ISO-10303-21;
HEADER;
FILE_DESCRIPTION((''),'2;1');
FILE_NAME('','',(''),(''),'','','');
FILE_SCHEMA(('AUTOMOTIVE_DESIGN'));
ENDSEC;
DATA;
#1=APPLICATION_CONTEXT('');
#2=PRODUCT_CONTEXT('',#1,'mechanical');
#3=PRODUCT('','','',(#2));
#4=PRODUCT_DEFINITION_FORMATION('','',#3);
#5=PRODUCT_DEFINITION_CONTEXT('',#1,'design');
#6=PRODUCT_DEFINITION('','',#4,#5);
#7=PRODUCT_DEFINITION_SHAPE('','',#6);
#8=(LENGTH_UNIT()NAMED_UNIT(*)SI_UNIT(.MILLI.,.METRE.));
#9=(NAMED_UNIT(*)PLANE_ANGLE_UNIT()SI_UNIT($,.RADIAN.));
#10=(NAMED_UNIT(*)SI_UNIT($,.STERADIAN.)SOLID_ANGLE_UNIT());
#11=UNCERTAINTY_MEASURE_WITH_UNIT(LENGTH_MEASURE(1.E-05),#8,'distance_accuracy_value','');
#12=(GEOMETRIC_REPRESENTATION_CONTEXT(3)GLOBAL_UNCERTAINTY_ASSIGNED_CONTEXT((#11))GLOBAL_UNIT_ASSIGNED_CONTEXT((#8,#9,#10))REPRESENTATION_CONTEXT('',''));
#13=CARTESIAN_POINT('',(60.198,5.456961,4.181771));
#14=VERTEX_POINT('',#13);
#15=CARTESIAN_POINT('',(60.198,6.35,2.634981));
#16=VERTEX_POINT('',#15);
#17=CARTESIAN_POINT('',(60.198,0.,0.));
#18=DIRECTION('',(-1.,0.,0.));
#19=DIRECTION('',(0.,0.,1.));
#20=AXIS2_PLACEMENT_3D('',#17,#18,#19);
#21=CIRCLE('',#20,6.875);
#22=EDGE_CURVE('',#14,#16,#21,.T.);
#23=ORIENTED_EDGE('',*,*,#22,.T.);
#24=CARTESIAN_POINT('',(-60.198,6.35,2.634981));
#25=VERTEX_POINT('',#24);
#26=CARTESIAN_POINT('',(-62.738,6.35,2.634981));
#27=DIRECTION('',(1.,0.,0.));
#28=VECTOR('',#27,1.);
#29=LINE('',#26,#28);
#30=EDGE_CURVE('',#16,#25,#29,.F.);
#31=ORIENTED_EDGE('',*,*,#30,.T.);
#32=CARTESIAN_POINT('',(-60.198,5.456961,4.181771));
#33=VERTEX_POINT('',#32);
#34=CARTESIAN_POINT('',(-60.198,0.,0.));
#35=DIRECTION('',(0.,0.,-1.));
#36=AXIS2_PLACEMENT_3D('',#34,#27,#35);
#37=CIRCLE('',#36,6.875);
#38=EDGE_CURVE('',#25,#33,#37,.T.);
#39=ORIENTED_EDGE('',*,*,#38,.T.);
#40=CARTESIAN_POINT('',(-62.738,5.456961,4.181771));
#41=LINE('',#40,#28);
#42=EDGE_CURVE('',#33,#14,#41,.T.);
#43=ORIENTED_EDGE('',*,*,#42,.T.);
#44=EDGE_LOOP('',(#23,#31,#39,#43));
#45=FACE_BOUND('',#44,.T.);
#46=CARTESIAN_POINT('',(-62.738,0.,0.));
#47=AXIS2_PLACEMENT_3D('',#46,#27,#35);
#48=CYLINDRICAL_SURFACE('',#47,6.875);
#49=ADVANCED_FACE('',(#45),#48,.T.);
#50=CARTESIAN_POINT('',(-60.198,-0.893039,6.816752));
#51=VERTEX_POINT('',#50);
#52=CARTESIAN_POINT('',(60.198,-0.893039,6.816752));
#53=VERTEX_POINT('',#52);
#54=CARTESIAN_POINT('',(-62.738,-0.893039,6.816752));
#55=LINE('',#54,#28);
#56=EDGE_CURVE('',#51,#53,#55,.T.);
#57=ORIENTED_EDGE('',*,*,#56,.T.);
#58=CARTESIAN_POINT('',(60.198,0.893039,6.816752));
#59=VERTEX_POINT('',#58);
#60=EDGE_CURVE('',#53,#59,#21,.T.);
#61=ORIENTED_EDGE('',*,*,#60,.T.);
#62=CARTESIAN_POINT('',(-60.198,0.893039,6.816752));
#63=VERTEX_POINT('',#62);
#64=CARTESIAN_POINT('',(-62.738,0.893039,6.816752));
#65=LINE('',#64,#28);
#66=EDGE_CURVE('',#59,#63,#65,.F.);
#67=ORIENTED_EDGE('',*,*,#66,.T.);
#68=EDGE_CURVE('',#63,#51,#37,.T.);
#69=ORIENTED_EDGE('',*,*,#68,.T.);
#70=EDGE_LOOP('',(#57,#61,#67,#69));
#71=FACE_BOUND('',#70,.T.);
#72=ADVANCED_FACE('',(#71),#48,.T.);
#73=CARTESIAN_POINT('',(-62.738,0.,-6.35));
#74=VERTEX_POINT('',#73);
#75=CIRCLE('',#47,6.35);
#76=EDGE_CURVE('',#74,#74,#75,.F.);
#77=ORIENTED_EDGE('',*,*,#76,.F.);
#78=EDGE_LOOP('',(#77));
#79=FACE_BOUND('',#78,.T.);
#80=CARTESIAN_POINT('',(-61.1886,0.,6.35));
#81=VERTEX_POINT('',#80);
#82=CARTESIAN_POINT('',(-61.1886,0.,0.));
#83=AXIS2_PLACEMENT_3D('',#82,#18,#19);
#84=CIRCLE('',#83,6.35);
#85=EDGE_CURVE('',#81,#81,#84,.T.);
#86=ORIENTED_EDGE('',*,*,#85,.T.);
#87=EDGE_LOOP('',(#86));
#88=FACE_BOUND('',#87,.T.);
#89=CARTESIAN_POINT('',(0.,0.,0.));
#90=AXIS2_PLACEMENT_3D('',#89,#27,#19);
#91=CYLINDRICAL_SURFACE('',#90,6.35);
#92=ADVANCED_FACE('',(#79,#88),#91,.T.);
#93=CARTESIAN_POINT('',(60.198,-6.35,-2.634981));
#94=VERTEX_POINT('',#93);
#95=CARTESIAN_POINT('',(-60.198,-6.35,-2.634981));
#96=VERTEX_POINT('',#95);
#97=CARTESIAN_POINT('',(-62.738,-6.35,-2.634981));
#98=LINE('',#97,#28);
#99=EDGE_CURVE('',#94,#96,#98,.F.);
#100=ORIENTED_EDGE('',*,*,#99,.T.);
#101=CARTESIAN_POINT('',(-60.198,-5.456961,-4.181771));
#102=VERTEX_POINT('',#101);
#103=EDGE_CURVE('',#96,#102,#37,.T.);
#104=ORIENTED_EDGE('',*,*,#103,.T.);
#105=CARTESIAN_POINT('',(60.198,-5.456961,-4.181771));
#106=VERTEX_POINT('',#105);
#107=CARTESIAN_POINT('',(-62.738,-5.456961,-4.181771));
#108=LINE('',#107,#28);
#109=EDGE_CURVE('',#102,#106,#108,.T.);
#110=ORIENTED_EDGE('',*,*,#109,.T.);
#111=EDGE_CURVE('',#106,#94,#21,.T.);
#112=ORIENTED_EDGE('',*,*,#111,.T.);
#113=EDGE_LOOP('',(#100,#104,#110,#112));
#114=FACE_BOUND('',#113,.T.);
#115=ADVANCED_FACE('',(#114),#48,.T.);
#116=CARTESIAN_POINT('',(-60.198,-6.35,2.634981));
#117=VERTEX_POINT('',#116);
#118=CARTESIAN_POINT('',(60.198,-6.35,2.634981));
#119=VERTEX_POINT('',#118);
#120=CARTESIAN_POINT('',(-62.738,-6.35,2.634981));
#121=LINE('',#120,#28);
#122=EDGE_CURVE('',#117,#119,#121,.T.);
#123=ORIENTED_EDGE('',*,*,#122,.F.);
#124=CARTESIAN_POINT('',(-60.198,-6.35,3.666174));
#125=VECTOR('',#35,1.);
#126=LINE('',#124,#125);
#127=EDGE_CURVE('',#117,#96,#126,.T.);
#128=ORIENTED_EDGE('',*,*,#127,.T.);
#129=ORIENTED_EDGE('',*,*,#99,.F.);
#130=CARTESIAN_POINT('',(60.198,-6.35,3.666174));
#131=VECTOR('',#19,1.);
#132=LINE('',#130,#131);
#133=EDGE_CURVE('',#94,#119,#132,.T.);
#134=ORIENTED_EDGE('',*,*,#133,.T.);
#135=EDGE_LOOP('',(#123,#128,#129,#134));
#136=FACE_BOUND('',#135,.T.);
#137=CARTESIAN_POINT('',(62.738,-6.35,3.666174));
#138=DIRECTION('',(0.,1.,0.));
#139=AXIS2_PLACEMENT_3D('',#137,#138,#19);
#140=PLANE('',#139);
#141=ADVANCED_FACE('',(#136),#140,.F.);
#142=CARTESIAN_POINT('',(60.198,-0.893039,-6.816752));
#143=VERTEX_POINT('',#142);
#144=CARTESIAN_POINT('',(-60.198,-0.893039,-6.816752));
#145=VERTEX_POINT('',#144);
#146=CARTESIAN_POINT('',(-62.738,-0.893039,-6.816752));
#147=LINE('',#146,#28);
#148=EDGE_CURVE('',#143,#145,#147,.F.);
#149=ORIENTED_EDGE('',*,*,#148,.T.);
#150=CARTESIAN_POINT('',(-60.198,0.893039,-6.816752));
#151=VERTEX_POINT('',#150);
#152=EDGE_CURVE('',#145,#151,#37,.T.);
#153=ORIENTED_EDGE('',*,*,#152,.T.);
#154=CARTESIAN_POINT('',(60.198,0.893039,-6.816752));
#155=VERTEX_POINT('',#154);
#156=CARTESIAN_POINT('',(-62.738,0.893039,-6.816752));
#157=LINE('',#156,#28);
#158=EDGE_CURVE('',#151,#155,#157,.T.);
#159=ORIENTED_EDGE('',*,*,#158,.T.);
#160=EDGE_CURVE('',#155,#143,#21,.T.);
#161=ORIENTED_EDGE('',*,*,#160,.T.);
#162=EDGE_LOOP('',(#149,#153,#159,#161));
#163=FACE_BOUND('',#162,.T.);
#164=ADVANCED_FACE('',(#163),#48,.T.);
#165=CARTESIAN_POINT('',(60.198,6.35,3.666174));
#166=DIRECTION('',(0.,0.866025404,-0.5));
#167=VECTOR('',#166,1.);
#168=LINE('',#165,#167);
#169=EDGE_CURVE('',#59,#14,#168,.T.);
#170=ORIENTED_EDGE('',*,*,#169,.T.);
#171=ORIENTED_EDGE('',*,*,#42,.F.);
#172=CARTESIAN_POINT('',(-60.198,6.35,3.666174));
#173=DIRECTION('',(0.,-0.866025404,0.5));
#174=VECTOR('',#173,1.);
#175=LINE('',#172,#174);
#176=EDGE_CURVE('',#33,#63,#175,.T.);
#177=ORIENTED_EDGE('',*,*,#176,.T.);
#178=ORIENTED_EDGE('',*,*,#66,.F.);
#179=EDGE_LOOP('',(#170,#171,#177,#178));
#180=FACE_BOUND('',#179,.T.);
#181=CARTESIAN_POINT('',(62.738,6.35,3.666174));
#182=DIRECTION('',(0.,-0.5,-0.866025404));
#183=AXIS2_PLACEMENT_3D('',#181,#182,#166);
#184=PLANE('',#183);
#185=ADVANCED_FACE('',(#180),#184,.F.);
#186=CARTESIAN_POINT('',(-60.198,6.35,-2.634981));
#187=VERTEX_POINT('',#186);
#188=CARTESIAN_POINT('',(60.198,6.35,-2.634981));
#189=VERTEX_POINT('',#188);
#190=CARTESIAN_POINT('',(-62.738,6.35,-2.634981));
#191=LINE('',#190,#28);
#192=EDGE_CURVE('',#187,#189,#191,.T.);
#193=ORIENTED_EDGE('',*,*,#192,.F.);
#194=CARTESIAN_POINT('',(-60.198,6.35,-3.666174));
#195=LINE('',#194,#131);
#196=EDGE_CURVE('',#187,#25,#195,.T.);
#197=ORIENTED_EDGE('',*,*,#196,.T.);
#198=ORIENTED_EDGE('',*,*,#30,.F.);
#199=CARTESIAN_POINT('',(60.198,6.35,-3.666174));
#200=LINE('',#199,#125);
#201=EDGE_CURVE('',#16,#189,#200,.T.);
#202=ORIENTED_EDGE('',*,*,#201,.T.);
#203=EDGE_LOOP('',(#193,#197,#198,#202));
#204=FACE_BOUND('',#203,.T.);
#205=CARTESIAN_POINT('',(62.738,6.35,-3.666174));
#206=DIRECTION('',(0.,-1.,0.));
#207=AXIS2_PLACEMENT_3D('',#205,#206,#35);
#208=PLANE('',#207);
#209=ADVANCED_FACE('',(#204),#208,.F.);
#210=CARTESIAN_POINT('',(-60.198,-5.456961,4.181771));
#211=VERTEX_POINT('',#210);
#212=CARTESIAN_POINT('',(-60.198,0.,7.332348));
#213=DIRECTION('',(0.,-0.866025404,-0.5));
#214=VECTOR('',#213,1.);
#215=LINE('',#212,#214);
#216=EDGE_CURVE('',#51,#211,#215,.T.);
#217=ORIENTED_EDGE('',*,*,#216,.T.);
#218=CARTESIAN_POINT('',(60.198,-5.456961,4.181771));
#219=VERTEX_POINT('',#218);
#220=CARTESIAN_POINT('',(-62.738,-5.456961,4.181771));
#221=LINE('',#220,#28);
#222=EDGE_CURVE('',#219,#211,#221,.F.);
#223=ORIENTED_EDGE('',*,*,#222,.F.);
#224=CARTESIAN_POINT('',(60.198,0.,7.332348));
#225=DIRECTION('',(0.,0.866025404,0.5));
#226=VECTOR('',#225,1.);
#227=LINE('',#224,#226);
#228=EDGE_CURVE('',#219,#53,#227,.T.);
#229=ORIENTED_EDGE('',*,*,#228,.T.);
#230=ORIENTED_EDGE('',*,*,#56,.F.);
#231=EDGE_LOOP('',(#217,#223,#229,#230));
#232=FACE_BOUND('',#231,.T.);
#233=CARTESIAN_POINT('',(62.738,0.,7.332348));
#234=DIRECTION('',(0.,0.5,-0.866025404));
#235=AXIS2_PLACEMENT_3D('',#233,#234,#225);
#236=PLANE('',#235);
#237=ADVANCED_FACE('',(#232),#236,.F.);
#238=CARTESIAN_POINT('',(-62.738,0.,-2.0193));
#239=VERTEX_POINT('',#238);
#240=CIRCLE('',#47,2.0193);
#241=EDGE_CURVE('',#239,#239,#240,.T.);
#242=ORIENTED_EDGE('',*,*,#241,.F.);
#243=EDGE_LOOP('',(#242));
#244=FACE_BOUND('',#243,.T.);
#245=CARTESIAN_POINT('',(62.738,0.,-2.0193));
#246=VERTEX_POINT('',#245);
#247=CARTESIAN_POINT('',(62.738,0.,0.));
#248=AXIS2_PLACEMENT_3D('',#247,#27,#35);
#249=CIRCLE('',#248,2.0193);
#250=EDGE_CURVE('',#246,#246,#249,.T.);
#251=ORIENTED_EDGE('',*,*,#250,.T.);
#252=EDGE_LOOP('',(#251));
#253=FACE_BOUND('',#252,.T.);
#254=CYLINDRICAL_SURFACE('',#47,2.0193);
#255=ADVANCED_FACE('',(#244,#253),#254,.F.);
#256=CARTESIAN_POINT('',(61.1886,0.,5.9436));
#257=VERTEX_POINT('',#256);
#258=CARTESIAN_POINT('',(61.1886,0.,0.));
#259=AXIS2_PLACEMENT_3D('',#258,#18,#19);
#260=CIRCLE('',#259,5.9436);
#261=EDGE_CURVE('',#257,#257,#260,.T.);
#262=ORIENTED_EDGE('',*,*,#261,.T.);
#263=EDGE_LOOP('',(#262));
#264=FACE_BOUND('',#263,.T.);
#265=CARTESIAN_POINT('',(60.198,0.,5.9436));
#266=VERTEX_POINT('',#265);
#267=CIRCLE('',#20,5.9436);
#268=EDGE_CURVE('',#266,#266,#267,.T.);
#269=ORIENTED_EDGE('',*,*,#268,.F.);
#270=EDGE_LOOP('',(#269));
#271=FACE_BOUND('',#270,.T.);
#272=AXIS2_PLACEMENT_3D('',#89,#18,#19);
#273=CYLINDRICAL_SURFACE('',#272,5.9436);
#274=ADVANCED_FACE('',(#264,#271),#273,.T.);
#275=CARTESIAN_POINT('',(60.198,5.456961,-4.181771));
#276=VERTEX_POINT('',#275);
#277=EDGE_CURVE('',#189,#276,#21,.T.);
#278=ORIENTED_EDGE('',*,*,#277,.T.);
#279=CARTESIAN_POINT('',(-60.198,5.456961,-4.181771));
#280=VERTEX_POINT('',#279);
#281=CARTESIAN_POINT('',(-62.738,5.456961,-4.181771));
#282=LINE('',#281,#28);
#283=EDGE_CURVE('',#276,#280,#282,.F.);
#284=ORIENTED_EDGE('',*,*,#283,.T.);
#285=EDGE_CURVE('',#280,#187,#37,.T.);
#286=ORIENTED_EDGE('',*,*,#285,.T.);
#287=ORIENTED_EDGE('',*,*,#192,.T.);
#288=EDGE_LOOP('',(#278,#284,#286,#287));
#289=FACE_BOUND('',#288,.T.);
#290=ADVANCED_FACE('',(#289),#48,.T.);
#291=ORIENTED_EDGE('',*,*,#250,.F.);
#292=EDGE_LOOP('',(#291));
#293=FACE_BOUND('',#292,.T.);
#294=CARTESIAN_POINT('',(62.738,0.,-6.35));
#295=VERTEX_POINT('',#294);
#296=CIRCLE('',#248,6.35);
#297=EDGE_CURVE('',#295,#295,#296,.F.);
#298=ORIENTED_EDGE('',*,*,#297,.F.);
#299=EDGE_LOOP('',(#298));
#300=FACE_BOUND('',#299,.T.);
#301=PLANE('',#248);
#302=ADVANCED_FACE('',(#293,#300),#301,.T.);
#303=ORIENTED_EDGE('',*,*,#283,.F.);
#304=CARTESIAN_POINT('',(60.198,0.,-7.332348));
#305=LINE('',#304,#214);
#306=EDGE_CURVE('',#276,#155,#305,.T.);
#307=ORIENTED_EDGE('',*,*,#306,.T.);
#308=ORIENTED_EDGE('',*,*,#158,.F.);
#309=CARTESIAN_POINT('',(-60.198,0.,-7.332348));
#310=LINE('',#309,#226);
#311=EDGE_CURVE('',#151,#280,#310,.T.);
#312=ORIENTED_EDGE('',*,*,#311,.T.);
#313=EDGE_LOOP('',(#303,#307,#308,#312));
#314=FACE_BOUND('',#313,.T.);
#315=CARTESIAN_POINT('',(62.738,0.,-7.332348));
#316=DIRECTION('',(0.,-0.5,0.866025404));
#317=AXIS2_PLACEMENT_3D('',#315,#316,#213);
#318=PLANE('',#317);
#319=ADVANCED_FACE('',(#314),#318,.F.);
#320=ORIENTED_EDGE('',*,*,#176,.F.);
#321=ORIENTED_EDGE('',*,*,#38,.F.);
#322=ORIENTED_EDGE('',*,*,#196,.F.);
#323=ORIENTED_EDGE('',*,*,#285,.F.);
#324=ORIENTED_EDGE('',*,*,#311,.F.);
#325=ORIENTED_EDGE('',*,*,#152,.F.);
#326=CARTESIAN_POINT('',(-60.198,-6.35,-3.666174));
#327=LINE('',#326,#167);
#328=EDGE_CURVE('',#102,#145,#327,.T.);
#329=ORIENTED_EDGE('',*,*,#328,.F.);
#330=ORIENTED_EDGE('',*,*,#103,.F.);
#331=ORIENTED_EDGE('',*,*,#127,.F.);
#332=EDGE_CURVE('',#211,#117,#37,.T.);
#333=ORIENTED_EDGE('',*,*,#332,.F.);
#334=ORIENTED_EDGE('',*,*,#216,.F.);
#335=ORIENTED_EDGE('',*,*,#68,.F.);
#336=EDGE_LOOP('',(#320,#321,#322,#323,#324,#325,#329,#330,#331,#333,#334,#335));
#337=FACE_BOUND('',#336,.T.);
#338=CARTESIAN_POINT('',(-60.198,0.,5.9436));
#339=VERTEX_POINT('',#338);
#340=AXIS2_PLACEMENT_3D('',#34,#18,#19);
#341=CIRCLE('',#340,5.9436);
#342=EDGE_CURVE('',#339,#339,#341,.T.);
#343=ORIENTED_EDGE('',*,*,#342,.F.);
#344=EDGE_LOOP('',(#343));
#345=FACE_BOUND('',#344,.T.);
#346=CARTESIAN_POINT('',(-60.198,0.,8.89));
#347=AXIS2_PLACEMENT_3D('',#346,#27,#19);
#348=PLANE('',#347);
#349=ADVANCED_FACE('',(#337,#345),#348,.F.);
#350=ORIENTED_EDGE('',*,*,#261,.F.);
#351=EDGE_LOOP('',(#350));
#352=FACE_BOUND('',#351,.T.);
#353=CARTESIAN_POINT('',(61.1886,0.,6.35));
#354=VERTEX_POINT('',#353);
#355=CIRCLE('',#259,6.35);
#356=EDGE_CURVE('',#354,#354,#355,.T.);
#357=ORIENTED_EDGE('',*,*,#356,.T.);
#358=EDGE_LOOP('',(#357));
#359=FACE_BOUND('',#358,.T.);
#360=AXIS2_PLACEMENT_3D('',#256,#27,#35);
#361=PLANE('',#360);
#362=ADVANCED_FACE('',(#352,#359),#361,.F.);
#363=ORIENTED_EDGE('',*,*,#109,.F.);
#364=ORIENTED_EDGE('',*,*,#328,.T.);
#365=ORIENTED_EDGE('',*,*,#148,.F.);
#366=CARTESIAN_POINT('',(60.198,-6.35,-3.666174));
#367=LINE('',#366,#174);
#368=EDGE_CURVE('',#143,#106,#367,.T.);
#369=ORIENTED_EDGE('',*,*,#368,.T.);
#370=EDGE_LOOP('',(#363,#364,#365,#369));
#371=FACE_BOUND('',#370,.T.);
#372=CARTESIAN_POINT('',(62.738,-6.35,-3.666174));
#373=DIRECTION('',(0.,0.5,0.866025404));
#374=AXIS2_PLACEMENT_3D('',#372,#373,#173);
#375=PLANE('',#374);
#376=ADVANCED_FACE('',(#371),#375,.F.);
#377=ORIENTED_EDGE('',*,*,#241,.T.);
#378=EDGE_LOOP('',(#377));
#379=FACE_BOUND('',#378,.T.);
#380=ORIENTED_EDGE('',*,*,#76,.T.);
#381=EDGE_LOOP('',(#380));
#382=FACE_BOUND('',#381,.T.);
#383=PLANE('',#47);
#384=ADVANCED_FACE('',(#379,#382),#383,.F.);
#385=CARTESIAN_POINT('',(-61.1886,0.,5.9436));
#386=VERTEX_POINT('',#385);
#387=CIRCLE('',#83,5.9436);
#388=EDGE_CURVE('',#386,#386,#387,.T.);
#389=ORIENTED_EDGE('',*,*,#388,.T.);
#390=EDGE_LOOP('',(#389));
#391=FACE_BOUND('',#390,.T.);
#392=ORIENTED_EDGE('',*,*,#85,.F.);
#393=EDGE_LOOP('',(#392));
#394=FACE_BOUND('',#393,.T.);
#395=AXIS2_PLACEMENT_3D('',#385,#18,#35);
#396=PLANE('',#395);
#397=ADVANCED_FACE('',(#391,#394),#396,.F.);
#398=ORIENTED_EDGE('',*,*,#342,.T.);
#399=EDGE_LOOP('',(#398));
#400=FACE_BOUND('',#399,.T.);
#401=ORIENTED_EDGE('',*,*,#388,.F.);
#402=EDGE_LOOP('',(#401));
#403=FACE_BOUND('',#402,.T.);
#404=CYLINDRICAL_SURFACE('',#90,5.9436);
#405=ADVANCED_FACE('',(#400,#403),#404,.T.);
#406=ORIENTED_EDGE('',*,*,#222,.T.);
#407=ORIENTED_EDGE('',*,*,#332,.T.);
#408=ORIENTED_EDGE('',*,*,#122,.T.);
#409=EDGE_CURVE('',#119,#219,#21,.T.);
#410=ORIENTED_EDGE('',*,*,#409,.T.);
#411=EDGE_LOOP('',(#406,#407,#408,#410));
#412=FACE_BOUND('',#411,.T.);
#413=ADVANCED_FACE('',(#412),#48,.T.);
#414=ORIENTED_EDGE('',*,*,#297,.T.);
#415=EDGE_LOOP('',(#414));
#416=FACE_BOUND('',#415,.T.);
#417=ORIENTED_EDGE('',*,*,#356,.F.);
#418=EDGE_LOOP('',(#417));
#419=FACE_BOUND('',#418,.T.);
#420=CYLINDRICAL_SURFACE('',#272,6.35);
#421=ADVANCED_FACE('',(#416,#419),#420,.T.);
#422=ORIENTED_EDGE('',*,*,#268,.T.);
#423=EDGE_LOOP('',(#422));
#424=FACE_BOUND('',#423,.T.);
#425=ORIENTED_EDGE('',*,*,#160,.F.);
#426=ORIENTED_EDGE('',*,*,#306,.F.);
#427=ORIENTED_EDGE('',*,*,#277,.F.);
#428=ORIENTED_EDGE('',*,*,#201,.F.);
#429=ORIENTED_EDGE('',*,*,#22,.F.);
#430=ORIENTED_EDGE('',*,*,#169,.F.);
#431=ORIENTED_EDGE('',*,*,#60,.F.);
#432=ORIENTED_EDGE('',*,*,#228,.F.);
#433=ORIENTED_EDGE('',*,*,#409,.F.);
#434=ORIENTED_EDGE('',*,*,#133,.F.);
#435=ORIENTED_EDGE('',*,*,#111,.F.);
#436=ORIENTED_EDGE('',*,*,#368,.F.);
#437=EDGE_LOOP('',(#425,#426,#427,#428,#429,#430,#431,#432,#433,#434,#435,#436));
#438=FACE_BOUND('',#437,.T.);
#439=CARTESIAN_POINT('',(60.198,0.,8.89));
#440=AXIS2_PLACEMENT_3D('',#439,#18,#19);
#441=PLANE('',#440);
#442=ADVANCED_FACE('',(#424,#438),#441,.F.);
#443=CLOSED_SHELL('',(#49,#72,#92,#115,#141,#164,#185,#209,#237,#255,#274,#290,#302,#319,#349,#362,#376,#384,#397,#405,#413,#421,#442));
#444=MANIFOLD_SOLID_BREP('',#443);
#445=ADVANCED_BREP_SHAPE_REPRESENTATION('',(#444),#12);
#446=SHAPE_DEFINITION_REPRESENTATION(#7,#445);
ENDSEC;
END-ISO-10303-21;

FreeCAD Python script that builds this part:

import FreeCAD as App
import Part
import Sketcher

V = App.Vector
Q = App.Units.Quantity

doc = App.newDocument("Part")
body = doc.addObject("PartDesign::Body", "Body")

# Sketch on YZ plane
sketch1 = body.newObject("Sketcher::SketchObject", "Sketch")
sketch1.AttachmentSupport = (doc.getObject("YZ_Plane"), [""])
sketch1.MapMode = "FlatFace"
sketch1.addGeometry([
    Part.LineSegment(V(0, -7.332348, 0), V(6.35, -3.666174, 0)),  # 0
    Part.LineSegment(V(6.35, -3.666174, 0), V(6.35, 3.666174, 0)),  # 1
    Part.LineSegment(V(6.35, 3.666174, 0), V(0, 7.332348, 0)),  # 2
    Part.LineSegment(V(0, 7.332348, 0), V(-6.35, 3.666174, 0)),  # 3
    Part.LineSegment(V(-6.35, 3.666174, 0), V(-6.35, -3.666174, 0)),  # 4
    Part.LineSegment(V(-6.35, -3.666174, 0), V(0, -7.332348, 0)),  # 5
], False)
sketch1.addConstraint([
    Sketcher.Constraint("Coincident", 0, 2, 1, 1),
    Sketcher.Constraint("Coincident", 1, 2, 2, 1),
    Sketcher.Constraint("Coincident", 2, 2, 3, 1),
    Sketcher.Constraint("Coincident", 3, 2, 4, 1),
    Sketcher.Constraint("Coincident", 4, 2, 5, 1),
    Sketcher.Constraint("Coincident", 5, 2, 0, 1),
    Sketcher.Constraint("Vertical", 1),
    Sketcher.Constraint("Vertical", 4),
    Sketcher.Constraint("Symmetric", 0, 2, 3, 2, -1, 1),
    Sketcher.Constraint("Symmetric", 2, 2, 5, 2, -1, 1),
    Sketcher.Constraint("PointOnObject", 2, 2, -2),
    Sketcher.Constraint("Parallel", 2, 5),
    Sketcher.Constraint("Horizontal", 1, 2, 3, 2),
    Sketcher.Constraint("Angle", 0, Q("30 deg")),
    Sketcher.Constraint("DistanceX", 3, 2, 1, 2, Q("0.5 in")),
    Sketcher.Constraint("DistanceY", 1, 1, 1, 2, Q("7.332348 mm")),
])
pad1 = body.newObject("PartDesign::Pad", "Pad")
pad1.Profile = sketch1
pad1.Length = Q("4.94 in")
pad1.Midplane = True

# Sketch on XZ plane
sketch2 = body.newObject("Sketcher::SketchObject", "Sketch001")
sketch2.AttachmentSupport = (doc.getObject("XZ_Plane"), [""])
sketch2.MapMode = "FlatFace"
sketch2.addGeometry([
    Part.LineSegment(V(61.1886, 5.9436, 0), V(60.198, 5.9436, 0)),  # 0
    Part.LineSegment(V(60.198, 5.9436, 0), V(60.198, 8.89, 0)),  # 1
    Part.LineSegment(V(60.198, 8.89, 0), V(62.738, 8.89, 0)),  # 2
    Part.LineSegment(V(62.738, 8.89, 0), V(62.738, 6.35, 0)),  # 3
    Part.LineSegment(V(62.738, 6.35, 0), V(61.1886, 6.35, 0)),  # 4
    Part.LineSegment(V(61.1886, 6.35, 0), V(61.1886, 5.9436, 0)),  # 5
], False)
sketch2.addConstraint([
    Sketcher.Constraint("Coincident", 0, 2, 1, 1),
    Sketcher.Constraint("Coincident", 1, 2, 2, 1),
    Sketcher.Constraint("Coincident", 2, 2, 3, 1),
    Sketcher.Constraint("Coincident", 3, 2, 4, 1),
    Sketcher.Constraint("Coincident", 4, 2, 5, 1),
    Sketcher.Constraint("Coincident", 5, 2, 0, 1),
    Sketcher.Constraint("Horizontal", 0),
    Sketcher.Constraint("Vertical", 1),
    Sketcher.Constraint("Horizontal", 2),
    Sketcher.Constraint("Vertical", 3),
    Sketcher.Constraint("Horizontal", 4),
    Sketcher.Constraint("Vertical", 5),
    Sketcher.Constraint("Equal", 2, 3),
    Sketcher.Constraint("DistanceX", 2, 1, 2, 2, Q("0.1 in")),
    Sketcher.Constraint("DistanceX", 0, 2, 0, 1, Q("0.039 in")),
    Sketcher.Constraint("DistanceY", 1, 1, 1, 2, Q("0.116 in")),
    Sketcher.Constraint("DistanceX", -1, 1, 0, 2, Q("2.37 in")),
    Sketcher.Constraint("DistanceY", -1, 1, 1, 2, Q("0.35 in")),
])
groove = body.newObject("PartDesign::Groove", "Groove")
groove.Profile = sketch2
groove.ReferenceAxis = (sketch2, ["H_Axis"])
groove.Angle = 360
doc.recompute()

mirrored = body.newObject("PartDesign::Mirrored", "Mirrored")
mirrored.Originals = [groove]
mirrored.MirrorPlane = (doc.getObject("YZ_Plane"), [""])
body.Tip = mirrored

# Sketch on YZ plane
sketch3 = body.newObject("Sketcher::SketchObject", "Sketch002")
sketch3.AttachmentSupport = (doc.getObject("YZ_Plane"), [""])
sketch3.MapMode = "FlatFace"
sketch3.AttachmentOffset = App.Placement(V(0, 0, 2.47 * 25.4), App.Rotation())
sketch3.addGeometry([
    Part.Circle(V(0, 0, 0), V(0, 0, 1), 7.332348),
    Part.Circle(V(0, 0, 0), V(0, 0, 1), 6.875),
    Part.Circle(V(0, 0, 0), V(0, 0, 1), 2.0193),
], False)
sketch3.addConstraint([
    Sketcher.Constraint("Coincident", 0, 3, -1, 1),
    Sketcher.Constraint("Coincident", 1, 3, -1, 1),
    Sketcher.Constraint("Coincident", 2, 3, -1, 1),
    Sketcher.Constraint("Diameter", 2, Q("0.159 in")),
    Sketcher.Constraint("Diameter", 1, Q("13.75 mm")),
    Sketcher.Constraint("Diameter", 0, Q("14.664697 mm")),
])
pocket1 = body.newObject("PartDesign::Pocket", "Pocket")
pocket1.Profile = sketch3
pocket1.Length = 126.850357

doc.recompute()
